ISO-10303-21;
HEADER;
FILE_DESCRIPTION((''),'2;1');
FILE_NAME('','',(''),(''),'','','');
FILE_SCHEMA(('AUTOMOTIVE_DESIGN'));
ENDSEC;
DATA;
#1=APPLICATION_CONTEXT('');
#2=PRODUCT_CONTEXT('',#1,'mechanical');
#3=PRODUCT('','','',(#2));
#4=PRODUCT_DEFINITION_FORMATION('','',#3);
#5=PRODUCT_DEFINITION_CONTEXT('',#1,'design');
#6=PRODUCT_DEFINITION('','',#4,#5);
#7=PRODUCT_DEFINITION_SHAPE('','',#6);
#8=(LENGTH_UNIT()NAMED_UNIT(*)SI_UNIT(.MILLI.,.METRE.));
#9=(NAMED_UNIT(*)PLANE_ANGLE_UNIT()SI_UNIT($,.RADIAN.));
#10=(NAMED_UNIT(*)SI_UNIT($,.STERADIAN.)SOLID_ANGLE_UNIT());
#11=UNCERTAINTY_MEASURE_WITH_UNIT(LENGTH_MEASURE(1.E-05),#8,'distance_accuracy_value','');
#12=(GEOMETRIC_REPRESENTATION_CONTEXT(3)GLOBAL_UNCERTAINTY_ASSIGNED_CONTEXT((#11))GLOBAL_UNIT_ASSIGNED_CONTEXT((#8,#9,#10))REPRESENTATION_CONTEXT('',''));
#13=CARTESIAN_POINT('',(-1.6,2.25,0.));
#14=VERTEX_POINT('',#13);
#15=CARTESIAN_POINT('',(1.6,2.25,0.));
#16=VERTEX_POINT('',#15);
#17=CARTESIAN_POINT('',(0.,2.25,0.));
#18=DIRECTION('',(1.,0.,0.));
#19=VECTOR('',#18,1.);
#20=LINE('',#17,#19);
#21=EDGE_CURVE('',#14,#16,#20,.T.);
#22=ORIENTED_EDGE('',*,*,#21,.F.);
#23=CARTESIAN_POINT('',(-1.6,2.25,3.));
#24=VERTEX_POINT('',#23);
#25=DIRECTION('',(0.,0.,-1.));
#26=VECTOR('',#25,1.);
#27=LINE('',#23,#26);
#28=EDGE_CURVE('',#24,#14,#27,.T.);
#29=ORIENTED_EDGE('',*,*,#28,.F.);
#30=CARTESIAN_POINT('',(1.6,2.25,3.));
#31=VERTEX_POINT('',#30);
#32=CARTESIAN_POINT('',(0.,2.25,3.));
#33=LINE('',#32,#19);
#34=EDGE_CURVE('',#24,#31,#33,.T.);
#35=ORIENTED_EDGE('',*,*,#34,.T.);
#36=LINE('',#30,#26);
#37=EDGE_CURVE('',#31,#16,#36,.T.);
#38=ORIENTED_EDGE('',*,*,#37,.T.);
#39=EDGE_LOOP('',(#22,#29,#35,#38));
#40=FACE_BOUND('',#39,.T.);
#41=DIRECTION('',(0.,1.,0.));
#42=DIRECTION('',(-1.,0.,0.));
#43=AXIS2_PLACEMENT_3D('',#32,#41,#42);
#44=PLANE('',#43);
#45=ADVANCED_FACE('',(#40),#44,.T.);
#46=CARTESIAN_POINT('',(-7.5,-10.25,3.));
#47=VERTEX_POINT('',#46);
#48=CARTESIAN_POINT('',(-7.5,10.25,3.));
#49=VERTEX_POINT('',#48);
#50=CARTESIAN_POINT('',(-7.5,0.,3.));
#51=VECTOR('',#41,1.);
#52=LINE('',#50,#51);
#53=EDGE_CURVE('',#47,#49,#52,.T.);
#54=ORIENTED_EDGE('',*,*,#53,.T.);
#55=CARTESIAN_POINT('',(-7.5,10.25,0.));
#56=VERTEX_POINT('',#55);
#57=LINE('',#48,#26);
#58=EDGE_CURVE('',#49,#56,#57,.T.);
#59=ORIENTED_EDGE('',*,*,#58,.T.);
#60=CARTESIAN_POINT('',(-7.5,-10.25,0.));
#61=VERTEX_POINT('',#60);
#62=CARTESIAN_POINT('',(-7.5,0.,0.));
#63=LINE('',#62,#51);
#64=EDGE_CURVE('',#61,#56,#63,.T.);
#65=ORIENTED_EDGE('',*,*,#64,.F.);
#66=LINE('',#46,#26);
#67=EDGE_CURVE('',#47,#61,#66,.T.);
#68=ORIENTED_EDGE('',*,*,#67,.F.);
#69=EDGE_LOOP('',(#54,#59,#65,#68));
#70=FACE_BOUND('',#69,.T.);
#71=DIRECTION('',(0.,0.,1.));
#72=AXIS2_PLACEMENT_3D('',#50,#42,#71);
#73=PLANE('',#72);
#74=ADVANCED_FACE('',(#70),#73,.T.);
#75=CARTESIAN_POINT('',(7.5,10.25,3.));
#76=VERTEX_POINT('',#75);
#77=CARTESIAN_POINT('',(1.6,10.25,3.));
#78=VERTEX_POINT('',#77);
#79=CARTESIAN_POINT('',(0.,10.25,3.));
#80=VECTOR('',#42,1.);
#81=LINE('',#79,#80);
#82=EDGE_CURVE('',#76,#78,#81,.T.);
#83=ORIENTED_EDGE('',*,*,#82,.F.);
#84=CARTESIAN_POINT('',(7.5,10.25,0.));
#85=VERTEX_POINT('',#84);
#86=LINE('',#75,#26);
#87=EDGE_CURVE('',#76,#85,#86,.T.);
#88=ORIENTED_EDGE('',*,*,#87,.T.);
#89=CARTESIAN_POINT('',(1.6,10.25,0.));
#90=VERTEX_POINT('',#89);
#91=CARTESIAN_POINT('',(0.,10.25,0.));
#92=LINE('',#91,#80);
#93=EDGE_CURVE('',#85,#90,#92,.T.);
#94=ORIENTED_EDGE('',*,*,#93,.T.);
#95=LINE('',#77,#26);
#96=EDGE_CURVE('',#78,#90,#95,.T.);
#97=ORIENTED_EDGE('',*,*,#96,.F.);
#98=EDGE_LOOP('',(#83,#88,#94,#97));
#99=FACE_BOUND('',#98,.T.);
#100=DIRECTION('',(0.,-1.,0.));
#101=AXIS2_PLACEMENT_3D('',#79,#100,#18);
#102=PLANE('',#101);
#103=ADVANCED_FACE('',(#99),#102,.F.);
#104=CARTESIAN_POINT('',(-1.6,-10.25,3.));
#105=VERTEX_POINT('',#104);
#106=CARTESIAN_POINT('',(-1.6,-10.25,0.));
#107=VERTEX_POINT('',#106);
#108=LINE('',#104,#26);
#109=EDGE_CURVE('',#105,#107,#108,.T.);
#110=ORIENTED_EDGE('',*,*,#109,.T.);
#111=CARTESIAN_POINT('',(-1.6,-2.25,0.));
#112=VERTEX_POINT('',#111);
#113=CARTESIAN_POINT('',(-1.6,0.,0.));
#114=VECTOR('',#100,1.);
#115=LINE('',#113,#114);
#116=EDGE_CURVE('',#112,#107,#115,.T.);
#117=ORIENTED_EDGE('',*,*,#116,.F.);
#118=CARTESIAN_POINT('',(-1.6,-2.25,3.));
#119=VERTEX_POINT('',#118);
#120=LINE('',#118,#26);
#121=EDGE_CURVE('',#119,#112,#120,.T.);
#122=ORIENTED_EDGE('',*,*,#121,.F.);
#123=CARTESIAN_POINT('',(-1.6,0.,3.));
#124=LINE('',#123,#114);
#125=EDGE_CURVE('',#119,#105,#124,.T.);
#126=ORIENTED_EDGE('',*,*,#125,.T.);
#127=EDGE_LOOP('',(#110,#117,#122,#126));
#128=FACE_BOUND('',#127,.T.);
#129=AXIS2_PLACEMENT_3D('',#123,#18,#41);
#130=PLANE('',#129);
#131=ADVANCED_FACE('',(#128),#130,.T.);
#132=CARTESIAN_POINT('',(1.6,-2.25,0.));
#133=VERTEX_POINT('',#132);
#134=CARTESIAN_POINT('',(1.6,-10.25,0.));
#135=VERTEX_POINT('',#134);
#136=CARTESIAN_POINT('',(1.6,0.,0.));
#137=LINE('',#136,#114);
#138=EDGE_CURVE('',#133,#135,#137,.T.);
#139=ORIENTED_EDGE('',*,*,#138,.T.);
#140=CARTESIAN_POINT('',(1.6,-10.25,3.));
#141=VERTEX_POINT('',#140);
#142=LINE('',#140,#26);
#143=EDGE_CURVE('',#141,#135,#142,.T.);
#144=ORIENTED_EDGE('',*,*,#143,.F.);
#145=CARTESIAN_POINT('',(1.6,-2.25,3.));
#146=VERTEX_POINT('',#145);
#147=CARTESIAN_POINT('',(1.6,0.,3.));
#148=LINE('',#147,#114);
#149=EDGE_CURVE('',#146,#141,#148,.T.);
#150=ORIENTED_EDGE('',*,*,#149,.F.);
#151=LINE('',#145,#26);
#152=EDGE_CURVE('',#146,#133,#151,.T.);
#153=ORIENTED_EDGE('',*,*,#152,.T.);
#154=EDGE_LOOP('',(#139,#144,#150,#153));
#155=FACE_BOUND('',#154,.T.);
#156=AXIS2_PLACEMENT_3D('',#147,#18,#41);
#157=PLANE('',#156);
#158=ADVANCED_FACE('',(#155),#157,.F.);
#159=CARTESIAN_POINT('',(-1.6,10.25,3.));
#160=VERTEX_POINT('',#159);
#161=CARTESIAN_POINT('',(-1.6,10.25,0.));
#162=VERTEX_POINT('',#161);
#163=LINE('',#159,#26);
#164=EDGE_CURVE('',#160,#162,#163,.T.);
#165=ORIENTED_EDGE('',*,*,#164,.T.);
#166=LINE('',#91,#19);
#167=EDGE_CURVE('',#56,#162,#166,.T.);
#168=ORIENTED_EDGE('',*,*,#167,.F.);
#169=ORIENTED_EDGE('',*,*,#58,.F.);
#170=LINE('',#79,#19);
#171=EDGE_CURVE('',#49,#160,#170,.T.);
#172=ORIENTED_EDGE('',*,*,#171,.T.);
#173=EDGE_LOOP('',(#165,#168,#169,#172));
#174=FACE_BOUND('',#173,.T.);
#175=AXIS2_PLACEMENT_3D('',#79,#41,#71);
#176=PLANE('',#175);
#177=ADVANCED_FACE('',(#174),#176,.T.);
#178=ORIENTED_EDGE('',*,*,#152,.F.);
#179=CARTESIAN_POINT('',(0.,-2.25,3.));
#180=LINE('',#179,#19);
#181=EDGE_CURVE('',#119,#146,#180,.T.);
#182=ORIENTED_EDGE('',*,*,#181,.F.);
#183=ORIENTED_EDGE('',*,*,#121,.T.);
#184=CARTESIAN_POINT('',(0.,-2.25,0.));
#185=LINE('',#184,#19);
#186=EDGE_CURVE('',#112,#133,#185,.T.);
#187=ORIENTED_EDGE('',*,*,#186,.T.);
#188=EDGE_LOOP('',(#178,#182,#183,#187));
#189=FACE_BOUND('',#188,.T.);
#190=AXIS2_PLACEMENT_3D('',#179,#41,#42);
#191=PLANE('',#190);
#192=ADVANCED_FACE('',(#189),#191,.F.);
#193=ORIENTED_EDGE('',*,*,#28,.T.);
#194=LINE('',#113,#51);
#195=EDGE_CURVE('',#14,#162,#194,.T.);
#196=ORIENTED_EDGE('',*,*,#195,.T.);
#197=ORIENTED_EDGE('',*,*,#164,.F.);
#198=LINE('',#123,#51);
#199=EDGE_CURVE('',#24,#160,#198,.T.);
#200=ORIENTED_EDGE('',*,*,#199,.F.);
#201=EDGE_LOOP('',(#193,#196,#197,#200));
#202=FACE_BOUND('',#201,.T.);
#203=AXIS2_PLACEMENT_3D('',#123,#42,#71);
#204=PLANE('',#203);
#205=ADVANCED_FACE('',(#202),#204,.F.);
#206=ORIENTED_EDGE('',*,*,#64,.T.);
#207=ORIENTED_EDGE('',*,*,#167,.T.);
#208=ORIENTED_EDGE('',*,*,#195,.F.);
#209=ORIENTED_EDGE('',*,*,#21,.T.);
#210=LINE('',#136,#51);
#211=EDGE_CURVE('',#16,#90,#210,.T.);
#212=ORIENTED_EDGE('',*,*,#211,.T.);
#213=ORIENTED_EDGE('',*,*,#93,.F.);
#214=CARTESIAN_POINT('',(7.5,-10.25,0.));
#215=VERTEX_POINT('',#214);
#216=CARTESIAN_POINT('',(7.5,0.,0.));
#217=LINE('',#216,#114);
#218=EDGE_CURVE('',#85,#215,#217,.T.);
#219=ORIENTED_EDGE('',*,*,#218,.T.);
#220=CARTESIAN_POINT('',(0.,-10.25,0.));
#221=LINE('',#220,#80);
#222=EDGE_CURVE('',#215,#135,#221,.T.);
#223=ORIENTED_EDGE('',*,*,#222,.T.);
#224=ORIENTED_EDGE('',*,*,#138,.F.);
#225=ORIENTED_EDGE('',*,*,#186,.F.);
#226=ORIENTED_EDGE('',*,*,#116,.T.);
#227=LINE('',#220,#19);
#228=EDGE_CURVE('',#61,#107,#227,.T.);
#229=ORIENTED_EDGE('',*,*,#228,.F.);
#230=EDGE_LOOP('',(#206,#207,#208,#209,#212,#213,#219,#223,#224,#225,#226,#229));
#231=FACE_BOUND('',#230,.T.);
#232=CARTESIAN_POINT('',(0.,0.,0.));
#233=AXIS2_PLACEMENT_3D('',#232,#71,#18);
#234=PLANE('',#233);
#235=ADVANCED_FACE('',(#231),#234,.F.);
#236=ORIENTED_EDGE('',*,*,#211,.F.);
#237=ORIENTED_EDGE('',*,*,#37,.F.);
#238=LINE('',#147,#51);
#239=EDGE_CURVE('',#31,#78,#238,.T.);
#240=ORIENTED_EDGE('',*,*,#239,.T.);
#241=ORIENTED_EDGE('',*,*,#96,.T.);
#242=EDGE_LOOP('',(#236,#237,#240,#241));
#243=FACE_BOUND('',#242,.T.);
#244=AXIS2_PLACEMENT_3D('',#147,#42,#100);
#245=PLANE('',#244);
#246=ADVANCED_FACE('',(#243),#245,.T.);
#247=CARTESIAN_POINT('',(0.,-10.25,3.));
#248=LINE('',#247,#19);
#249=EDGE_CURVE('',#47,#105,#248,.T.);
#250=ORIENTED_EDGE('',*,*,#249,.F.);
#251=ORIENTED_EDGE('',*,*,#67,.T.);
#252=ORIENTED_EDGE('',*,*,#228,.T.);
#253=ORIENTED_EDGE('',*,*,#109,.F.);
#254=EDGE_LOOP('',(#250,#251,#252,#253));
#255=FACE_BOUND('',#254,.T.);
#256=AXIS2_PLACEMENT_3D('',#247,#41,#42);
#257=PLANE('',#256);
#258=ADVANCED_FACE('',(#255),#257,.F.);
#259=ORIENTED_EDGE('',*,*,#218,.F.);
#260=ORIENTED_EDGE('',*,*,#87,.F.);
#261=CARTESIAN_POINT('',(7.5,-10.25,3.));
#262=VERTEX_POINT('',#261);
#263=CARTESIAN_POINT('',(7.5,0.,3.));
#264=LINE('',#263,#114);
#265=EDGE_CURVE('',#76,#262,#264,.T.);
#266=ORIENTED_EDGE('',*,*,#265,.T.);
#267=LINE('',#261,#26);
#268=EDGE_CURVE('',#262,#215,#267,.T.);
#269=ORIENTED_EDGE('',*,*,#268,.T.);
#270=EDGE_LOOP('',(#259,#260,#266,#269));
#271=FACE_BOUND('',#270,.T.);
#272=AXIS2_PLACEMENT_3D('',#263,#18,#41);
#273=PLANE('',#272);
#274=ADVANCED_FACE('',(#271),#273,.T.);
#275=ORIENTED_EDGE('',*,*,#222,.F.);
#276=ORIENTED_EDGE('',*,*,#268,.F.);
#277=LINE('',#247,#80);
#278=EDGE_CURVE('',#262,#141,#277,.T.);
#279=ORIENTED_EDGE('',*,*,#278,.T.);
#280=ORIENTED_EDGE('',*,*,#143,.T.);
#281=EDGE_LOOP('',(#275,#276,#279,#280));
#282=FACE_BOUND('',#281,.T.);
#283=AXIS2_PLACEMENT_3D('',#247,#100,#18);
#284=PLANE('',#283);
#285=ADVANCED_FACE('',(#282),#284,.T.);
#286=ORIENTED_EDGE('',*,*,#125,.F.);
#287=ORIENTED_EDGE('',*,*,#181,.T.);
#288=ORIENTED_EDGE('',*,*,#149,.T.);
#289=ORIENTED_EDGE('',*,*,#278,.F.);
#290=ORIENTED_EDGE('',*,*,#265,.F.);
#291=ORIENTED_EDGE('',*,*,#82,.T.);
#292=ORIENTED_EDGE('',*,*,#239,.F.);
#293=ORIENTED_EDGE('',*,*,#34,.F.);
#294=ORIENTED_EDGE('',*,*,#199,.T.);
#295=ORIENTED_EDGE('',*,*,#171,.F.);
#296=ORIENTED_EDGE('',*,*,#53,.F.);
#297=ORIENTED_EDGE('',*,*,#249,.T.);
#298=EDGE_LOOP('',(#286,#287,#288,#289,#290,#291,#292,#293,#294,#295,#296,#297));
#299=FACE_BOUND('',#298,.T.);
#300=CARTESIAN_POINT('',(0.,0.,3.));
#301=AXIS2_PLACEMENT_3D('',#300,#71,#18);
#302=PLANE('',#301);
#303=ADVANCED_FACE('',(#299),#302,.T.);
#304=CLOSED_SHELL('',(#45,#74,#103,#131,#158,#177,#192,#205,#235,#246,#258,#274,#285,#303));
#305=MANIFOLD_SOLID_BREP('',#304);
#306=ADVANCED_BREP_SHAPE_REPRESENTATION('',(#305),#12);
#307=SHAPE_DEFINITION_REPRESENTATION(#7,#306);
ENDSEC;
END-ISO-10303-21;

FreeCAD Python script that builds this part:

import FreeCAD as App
import Part
import Sketcher

V = App.Vector

doc = App.newDocument("Part")
body = doc.addObject("PartDesign::Body", "Body")

# Sketch on XY plane
sketch1 = body.newObject("Sketcher::SketchObject", "Sketch")
sketch1.AttachmentSupport = (doc.getObject("XY_Plane"), [""])
sketch1.MapMode = "FlatFace"
sketch1.addGeometry([
    Part.LineSegment(V(-7.5, 10.25, 0), V(-7.5, -10.25, 0)),  # 0
    Part.LineSegment(V(-7.5, -10.25, 0), V(-1.6, -10.25, 0)),  # 1
    Part.LineSegment(V(-1.6, -10.25, 0), V(-1.6, -2.25, 0)),  # 2
    Part.LineSegment(V(-1.6, -2.25, 0), V(1.6, -2.25, 0)),  # 3
    Part.LineSegment(V(1.6, -2.25, 0), V(1.6, -10.25, 0)),  # 4
    Part.LineSegment(V(1.6, -10.25, 0), V(7.5, -10.25, 0)),  # 5
    Part.LineSegment(V(7.5, -10.25, 0), V(7.5, 10.25, 0)),  # 6
    Part.LineSegment(V(7.5, 10.25, 0), V(1.6, 10.25, 0)),  # 7
    Part.LineSegment(V(1.6, 10.25, 0), V(1.6, 2.25, 0)),  # 8
    Part.LineSegment(V(1.6, 2.25, 0), V(-1.6, 2.25, 0)),  # 9
    Part.LineSegment(V(-1.6, 2.25, 0), V(-1.6, 10.25, 0)),  # 10
    Part.LineSegment(V(-1.6, 10.25, 0), V(-7.5, 10.25, 0)),  # 11
], False)
sketch1.addConstraint([
    Sketcher.Constraint("Coincident", 0, 2, 1, 1),
    Sketcher.Constraint("Coincident", 1, 2, 2, 1),
    Sketcher.Constraint("Coincident", 2, 2, 3, 1),
    Sketcher.Constraint("Coincident", 3, 2, 4, 1),
    Sketcher.Constraint("Coincident", 4, 2, 5, 1),
    Sketcher.Constraint("Coincident", 5, 2, 6, 1),
    Sketcher.Constraint("Coincident", 6, 2, 7, 1),
    Sketcher.Constraint("Coincident", 7, 2, 8, 1),
    Sketcher.Constraint("Coincident", 8, 2, 9, 1),
    Sketcher.Constraint("Coincident", 9, 2, 10, 1),
    Sketcher.Constraint("Coincident", 10, 2, 11, 1),
    Sketcher.Constraint("Coincident", 11, 2, 0, 1),
    Sketcher.Constraint("Vertical", 0),
    Sketcher.Constraint("Horizontal", 1),
    Sketcher.Constraint("Vertical", 2),
    Sketcher.Constraint("Horizontal", 3),
    Sketcher.Constraint("Vertical", 4),
    Sketcher.Constraint("Horizontal", 5),
    Sketcher.Constraint("Vertical", 6),
    Sketcher.Constraint("Horizontal", 7),
    Sketcher.Constraint("Vertical", 8),
    Sketcher.Constraint("Horizontal", 9),
    Sketcher.Constraint("Vertical", 10),
    Sketcher.Constraint("Horizontal", 11),
    Sketcher.Constraint("Symmetric", 0, 2, 6, 2, -1, 1),
    Sketcher.Constraint("Symmetric", 2, 2, 8, 2, -1, 1),
    Sketcher.Constraint("Symmetric", 4, 2, 10, 2, -1, 1),
    Sketcher.Constraint("Symmetric", 1, 2, 4, 2, -2),
    Sketcher.Constraint("DistanceY", 2, 1, 2, 2, 8.0),
    Sketcher.Constraint("DistanceX", 1, 1, 1, 2, 5.9),
    Sketcher.Constraint("DistanceX", 3, 1, 3, 2, 3.2),
    Sketcher.Constraint("DistanceY", 0, 2, 0, 1, 20.5),
])
pad1 = body.newObject("PartDesign::Pad", "Pad")
pad1.Profile = sketch1
pad1.Length = 3

doc.recompute()
